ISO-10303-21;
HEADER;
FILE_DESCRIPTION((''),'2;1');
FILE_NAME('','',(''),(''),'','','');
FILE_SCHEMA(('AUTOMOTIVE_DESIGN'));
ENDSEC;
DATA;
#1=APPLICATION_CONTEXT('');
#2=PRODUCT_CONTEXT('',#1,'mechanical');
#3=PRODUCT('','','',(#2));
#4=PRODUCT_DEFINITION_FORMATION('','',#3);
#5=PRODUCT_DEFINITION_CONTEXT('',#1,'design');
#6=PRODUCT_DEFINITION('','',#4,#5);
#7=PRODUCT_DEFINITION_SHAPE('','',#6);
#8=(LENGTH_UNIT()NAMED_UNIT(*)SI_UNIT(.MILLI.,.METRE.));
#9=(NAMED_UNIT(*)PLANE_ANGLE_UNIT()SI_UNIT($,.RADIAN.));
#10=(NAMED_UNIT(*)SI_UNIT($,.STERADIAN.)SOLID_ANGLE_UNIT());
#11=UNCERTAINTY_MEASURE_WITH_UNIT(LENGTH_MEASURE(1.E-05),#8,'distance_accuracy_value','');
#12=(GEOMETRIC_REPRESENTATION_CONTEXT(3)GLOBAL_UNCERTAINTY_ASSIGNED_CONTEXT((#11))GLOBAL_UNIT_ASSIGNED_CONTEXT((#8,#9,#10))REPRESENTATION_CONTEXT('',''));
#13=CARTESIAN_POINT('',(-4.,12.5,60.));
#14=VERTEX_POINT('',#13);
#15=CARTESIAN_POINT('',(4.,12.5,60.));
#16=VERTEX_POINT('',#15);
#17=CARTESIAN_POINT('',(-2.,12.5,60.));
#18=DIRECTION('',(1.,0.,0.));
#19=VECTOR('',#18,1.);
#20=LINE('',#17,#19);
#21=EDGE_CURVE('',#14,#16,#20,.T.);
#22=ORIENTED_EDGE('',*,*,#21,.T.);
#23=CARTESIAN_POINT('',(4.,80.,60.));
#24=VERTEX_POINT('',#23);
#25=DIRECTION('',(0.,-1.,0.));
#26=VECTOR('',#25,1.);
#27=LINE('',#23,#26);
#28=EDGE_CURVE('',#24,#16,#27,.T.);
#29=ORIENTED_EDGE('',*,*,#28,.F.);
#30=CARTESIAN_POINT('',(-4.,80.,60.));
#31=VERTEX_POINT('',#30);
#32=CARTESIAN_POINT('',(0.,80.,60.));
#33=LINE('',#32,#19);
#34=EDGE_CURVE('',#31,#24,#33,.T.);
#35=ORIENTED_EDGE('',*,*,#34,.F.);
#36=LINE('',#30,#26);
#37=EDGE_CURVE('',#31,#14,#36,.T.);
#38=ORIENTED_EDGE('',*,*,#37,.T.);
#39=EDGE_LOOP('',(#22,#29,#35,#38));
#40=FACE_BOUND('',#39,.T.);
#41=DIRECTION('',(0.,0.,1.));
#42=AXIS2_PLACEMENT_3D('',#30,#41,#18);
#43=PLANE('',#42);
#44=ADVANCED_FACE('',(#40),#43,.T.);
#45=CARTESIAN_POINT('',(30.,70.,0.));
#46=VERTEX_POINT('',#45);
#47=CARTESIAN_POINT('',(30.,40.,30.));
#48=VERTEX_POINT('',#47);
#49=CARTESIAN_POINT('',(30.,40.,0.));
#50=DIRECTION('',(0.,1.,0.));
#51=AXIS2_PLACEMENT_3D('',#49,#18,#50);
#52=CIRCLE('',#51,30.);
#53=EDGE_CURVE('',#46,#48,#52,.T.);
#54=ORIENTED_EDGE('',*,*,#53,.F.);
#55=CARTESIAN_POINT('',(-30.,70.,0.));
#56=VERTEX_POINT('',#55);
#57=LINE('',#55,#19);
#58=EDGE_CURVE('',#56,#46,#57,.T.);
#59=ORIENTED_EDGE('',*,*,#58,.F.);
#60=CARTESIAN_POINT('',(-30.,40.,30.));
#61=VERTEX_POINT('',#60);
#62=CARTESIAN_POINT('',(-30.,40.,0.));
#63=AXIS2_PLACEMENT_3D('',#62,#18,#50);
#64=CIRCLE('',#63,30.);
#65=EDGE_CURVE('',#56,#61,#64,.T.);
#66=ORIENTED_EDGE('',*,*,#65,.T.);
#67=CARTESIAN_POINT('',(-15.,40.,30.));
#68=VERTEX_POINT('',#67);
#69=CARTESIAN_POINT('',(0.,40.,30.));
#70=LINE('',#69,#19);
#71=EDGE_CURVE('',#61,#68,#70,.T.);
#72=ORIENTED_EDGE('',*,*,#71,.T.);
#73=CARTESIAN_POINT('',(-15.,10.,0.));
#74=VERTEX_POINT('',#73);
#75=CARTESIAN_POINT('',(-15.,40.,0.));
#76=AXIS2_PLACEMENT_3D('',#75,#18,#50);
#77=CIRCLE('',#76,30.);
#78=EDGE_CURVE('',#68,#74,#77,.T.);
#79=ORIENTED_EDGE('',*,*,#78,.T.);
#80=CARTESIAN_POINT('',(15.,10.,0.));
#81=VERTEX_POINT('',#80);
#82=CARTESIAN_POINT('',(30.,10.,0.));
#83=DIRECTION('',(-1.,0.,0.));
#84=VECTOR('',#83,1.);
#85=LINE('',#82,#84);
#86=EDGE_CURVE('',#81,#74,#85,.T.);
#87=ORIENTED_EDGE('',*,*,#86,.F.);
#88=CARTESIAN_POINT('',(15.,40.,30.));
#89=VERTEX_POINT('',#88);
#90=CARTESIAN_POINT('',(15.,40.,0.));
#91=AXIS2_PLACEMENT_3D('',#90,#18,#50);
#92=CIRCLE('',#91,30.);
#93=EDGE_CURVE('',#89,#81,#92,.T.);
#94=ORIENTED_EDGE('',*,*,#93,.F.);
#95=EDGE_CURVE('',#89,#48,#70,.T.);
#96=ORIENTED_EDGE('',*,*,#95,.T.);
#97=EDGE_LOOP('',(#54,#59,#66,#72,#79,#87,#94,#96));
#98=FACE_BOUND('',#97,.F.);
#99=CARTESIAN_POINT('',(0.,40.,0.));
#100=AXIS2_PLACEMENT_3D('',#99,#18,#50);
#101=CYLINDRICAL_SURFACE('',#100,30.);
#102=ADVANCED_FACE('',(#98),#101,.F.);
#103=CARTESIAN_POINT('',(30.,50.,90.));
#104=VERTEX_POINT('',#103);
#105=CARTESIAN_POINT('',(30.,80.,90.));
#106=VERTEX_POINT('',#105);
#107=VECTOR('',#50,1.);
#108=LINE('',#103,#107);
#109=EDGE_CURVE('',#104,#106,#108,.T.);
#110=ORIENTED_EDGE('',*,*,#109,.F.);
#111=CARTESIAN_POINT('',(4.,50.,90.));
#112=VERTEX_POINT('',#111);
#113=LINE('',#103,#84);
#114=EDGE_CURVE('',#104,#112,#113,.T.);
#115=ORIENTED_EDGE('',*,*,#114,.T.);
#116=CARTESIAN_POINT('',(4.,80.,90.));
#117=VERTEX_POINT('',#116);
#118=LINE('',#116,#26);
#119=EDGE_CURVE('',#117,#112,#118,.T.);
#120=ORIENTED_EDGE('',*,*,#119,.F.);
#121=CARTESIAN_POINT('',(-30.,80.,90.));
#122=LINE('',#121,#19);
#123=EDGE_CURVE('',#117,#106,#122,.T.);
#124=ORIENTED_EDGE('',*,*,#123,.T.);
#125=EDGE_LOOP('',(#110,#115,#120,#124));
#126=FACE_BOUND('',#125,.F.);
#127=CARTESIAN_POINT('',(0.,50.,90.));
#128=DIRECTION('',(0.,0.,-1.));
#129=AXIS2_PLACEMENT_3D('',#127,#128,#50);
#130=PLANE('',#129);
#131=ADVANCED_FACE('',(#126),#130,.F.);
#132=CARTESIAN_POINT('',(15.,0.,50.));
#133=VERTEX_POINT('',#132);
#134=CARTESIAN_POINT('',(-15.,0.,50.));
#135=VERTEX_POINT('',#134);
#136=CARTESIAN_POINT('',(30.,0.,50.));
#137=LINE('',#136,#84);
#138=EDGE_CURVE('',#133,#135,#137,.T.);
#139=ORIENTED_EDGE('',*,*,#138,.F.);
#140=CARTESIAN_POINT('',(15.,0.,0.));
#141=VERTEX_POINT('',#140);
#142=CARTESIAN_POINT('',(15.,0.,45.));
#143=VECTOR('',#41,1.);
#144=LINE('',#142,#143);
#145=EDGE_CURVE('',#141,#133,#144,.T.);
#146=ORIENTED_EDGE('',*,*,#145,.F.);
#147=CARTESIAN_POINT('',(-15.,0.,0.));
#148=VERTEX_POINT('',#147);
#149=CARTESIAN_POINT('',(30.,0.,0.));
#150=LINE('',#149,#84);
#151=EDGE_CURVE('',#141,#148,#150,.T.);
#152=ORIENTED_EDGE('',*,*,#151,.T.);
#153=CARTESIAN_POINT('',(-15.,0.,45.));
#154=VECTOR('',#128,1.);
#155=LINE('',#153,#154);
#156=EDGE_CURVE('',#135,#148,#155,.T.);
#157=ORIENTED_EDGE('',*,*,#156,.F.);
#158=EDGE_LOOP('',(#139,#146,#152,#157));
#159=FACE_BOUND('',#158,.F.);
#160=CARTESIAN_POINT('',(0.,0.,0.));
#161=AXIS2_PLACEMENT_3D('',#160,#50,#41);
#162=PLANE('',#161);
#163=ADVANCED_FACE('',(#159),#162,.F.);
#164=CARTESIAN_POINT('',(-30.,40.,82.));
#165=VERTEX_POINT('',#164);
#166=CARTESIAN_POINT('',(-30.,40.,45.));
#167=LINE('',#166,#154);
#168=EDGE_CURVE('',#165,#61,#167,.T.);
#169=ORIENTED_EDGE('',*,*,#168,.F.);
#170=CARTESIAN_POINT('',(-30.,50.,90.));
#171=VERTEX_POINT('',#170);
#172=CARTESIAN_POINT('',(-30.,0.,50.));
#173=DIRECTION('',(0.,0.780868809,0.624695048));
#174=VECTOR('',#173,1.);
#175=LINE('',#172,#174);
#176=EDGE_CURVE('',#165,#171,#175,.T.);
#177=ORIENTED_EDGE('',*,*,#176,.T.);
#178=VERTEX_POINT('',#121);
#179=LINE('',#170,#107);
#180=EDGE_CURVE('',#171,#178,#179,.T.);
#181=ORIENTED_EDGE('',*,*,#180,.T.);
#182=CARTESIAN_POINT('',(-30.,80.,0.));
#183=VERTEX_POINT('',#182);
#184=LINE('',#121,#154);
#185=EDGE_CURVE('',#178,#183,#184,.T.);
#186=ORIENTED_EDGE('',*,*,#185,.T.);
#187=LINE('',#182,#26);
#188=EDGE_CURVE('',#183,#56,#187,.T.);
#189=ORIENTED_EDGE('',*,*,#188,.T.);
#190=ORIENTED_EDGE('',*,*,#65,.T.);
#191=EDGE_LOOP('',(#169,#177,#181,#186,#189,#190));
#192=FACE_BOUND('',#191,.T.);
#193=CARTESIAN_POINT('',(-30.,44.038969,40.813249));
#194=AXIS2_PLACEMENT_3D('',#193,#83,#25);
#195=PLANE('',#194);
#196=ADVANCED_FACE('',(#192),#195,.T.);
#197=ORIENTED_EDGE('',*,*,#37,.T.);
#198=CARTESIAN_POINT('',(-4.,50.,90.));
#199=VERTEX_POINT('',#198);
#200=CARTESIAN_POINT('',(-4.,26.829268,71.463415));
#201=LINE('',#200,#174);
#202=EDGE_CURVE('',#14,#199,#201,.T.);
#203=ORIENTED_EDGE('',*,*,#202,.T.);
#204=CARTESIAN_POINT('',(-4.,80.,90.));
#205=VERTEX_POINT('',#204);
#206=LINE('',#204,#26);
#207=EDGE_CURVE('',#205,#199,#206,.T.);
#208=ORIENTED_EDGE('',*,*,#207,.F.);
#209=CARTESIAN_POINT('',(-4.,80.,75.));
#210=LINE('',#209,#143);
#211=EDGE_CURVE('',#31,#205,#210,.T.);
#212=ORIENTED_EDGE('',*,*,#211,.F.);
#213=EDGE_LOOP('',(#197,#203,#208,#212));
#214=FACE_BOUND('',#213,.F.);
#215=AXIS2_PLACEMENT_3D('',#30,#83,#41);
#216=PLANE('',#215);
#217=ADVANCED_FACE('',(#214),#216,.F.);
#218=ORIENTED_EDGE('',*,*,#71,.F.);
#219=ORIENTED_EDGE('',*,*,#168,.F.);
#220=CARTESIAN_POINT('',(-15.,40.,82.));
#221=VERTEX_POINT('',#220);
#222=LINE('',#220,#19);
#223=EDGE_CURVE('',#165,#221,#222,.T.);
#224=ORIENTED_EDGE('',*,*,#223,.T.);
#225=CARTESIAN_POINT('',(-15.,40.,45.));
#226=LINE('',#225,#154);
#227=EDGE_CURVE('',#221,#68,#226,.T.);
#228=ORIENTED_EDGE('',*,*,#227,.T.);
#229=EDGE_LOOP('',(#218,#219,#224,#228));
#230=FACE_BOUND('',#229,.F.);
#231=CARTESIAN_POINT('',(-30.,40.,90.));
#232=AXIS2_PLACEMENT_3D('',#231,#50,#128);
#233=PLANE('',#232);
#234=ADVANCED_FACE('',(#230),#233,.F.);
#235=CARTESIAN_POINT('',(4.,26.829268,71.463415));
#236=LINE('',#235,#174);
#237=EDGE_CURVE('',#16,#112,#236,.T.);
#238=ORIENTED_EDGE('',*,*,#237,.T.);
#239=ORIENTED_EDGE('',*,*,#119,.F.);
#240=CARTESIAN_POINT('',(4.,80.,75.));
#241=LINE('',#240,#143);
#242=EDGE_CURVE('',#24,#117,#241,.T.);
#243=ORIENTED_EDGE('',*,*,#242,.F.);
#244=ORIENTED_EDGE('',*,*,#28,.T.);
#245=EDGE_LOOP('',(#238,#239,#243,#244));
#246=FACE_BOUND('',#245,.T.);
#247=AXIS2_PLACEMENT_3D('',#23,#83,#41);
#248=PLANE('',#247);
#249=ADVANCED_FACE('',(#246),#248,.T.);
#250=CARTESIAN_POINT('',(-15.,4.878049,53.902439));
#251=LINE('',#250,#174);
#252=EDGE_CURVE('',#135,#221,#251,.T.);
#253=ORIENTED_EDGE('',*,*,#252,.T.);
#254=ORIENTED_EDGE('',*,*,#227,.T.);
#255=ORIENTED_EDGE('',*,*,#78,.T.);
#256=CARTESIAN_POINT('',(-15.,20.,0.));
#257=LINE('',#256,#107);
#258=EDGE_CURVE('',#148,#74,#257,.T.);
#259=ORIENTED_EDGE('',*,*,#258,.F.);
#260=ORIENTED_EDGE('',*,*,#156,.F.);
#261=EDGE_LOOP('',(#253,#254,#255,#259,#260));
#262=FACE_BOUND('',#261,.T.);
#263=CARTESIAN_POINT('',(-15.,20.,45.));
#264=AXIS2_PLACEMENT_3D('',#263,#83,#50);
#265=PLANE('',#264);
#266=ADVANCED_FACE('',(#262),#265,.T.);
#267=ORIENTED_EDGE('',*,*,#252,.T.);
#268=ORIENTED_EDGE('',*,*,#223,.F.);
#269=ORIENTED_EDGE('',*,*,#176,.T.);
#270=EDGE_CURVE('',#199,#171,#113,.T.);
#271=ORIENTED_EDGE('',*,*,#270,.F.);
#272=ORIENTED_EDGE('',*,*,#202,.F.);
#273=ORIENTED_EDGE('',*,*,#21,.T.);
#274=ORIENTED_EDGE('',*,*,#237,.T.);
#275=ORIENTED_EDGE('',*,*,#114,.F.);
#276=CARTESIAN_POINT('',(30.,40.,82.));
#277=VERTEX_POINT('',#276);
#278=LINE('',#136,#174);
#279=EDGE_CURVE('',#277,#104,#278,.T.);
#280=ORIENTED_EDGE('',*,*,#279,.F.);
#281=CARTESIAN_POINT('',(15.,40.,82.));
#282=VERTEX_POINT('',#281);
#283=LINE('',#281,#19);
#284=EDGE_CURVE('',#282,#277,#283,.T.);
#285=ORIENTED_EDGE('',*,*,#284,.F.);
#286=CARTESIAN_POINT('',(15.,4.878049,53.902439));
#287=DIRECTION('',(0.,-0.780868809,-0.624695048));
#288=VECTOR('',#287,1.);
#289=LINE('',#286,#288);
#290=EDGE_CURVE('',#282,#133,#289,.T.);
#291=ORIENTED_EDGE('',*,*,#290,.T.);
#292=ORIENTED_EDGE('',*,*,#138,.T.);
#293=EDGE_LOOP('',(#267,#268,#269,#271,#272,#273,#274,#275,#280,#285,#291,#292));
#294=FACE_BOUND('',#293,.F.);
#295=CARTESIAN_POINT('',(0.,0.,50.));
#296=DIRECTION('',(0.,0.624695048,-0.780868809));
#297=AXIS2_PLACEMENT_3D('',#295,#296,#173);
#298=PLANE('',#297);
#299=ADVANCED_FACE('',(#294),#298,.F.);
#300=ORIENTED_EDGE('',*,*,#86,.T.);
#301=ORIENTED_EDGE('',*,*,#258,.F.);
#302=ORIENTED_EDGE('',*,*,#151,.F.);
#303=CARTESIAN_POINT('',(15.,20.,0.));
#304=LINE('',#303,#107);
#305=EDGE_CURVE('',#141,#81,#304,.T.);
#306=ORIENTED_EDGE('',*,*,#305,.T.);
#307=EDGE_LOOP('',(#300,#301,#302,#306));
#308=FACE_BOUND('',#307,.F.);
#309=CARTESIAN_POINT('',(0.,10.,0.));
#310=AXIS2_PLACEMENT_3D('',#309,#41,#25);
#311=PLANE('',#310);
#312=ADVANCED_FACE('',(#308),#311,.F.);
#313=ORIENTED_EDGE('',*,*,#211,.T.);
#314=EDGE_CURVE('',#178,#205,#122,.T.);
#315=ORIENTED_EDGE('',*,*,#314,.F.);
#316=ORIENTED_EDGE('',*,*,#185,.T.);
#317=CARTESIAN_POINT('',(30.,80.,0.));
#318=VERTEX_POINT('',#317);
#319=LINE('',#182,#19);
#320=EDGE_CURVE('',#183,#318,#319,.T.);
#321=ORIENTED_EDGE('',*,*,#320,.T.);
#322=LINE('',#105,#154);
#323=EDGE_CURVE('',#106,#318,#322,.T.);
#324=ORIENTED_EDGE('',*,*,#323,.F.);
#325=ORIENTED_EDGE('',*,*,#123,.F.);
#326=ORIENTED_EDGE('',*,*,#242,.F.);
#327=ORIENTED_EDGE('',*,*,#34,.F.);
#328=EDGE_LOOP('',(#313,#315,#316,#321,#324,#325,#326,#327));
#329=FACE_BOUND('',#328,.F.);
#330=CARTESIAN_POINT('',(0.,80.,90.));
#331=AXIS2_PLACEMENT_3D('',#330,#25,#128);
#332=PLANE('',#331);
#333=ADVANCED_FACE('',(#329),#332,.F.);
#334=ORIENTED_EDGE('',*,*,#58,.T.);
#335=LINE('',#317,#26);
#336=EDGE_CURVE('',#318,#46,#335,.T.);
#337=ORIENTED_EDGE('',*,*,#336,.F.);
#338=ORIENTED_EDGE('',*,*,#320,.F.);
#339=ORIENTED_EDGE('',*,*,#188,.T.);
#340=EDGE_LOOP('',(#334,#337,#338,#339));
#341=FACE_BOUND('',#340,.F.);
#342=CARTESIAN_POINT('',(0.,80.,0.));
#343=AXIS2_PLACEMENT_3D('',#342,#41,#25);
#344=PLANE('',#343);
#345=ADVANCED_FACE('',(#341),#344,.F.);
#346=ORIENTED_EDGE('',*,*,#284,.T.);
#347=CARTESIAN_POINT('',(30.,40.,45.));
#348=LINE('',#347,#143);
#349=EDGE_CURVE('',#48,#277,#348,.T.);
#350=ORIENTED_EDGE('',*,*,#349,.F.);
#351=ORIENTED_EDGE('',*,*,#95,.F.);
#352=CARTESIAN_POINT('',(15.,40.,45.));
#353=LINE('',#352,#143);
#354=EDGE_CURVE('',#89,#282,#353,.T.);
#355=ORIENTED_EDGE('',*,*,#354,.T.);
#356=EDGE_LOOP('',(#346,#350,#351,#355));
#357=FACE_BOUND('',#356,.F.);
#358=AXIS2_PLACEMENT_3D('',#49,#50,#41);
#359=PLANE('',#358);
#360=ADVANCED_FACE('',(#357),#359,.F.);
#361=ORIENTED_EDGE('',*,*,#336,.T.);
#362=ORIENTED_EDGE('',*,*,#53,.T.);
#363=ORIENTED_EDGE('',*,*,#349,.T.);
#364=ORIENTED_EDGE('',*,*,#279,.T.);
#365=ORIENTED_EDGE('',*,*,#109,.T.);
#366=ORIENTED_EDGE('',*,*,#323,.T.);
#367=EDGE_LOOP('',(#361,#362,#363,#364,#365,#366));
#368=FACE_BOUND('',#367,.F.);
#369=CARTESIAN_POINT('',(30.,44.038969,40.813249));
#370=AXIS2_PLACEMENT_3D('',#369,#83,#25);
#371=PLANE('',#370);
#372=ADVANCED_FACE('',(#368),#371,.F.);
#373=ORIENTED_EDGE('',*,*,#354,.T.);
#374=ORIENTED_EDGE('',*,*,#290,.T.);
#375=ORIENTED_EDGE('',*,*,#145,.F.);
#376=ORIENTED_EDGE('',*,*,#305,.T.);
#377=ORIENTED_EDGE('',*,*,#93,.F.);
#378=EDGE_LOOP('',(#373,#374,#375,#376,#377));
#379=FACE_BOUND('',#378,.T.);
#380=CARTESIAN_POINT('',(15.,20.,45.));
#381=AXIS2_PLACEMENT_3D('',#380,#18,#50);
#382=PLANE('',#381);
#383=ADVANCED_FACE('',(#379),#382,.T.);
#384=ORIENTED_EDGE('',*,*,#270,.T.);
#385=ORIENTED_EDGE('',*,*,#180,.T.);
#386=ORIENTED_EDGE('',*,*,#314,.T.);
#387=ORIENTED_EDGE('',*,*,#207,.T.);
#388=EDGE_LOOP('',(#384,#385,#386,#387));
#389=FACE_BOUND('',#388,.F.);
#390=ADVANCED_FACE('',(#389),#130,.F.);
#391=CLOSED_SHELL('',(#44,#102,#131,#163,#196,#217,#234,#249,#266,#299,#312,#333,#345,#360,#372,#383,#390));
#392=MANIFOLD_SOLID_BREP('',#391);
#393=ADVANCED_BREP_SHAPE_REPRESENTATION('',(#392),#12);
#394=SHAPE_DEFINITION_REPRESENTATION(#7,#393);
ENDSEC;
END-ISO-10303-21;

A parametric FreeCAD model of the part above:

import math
import FreeCAD as App
import Part
import Sketcher
from FreeCAD import Vector


def add_polygon(sketch, points):
    """Adds a closed chain of lines whose ends are joined by coincident constraints."""
    first, n = sketch.GeometryCount, len(points)
    for a, b in zip(points, points[1:] + points[:1]):
        sketch.addGeometry(Part.LineSegment(App.Vector(*a, 0), App.Vector(*b, 0)), False)
    for i in range(n):
        sketch.addConstraint(Sketcher.Constraint("Coincident", first + i, 2, first + (i + 1) % n, 1))

doc = App.newDocument("Part")
body = doc.addObject("PartDesign::Body", "Body")

sketch1 = body.newObject("Sketcher::SketchObject", "Sketch")
sketch1.AttachmentSupport = (doc.getObject("YZ_Plane"), [""])
sketch1.MapMode = "FlatFace"
sketch1.addGeometry([
    Part.ArcOfCircle(Part.Circle(Vector(40, 0, 0), Vector(0, 0, 1), 30), math.radians(0), math.radians(180)),
    Part.LineSegment(Vector(70, 0, 0), Vector(80, 0, 0)),
    Part.LineSegment(Vector(80, 0, 0), Vector(80, 90, 0)),
    Part.LineSegment(Vector(80, 90, 0), Vector(50, 90, 0)),
    Part.LineSegment(Vector(50, 90, 0), Vector(0, 50, 0)),
    Part.LineSegment(Vector(0, 50, 0), Vector(0, 0, 0)),
    Part.LineSegment(Vector(0, 0, 0), Vector(10, 0, 0)),
], False)
sketch1.addConstraint([
    Sketcher.Constraint("Coincident", 0, 1, 1, 1),
    Sketcher.Constraint("Coincident", 1, 2, 2, 1),
    Sketcher.Constraint("Coincident", 2, 2, 3, 1),
    Sketcher.Constraint("Coincident", 3, 2, 4, 1),
    Sketcher.Constraint("Coincident", 4, 2, 5, 1),
    Sketcher.Constraint("Coincident", 5, 2, 6, 1),
    Sketcher.Constraint("Coincident", 6, 2, 0, 2),
    Sketcher.Constraint("Horizontal", 1),
    Sketcher.Constraint("Vertical", 2),
    Sketcher.Constraint("Horizontal", 3),
    Sketcher.Constraint("Vertical", 5),
    Sketcher.Constraint("Horizontal", 6),
    Sketcher.Constraint("Coincident", 5, 2, -1, 1),
    Sketcher.Constraint("PointOnObject", 0, 3, -1),
    Sketcher.Constraint("PointOnObject", 0, 1, -1),
    Sketcher.Constraint("Equal", 1, 6),
    Sketcher.Constraint("Radius", 0, 30.0),
    Sketcher.Constraint("DistanceX", 1, 1, 1, 2, 10.0),
    Sketcher.Constraint("DistanceX", 3, 2, 3, 1, 30.0),
    Sketcher.Constraint("DistanceY", 2, 1, 2, 2, 90.0),
    Sketcher.Constraint("DistanceY", 5, 2, 5, 1, 50.0),
])
pad1 = body.newObject("PartDesign::Pad", "Pad")
pad1.Profile = sketch1
pad1.Length = 60
pad1.Midplane = True

sketch2 = body.newObject("Sketcher::SketchObject", "Sketch001")
sketch2.AttachmentSupport = (doc.getObject("YZ_Plane"), [""])
sketch2.MapMode = "FlatFace"
sketch2.AttachmentOffset = App.Placement(Vector(0, 0, 30), App.Rotation())
add_polygon(sketch2, [(0, 90), (0, 0), (40, 0), (40, 90)])
sketch2.addConstraint([
    Sketcher.Constraint("Vertical", 0),
    Sketcher.Constraint("Horizontal", 1),
    Sketcher.Constraint("Vertical", 2),
    Sketcher.Constraint("Horizontal", 3),
    Sketcher.Constraint("Coincident", 0, 2, -1, 1),
    Sketcher.Constraint("DistanceX", 1, 1, 1, 2, 40.0),
    Sketcher.Constraint("DistanceY", 0, 2, 0, 1, 90.0),
])
pocket1 = body.newObject("PartDesign::Pocket", "Pocket")
pocket1.Profile = sketch2
pocket1.Length = 15

sketch3 = body.newObject("Sketcher::SketchObject", "Sketch002")
sketch3.AttachmentSupport = (doc.getObject("YZ_Plane"), [""])
sketch3.MapMode = "FlatFace"
sketch3.AttachmentOffset = App.Placement(Vector(0, 0, -30), App.Rotation())
add_polygon(sketch3, [(0, 0), (0, 90), (40, 90), (40, 0)])
sketch3.addConstraint([
    Sketcher.Constraint("Vertical", 0),
    Sketcher.Constraint("Horizontal", 1),
    Sketcher.Constraint("Vertical", 2),
    Sketcher.Constraint("Horizontal", 3),
    Sketcher.Constraint("Coincident", 3, 2, -1, 1),
    Sketcher.Constraint("DistanceX", 1, 1, 1, 2, 40.0),
    Sketcher.Constraint("DistanceY", 0, 1, 0, 2, 90.0),
])
pocket2 = body.newObject("PartDesign::Pocket", "Pocket001")
pocket2.Profile = sketch3
pocket2.Length = 15
pocket2.Reversed = True

sketch4 = body.newObject("Sketcher::SketchObject", "Sketch003")
sketch4.AttachmentSupport = (doc.getObject("XZ_Plane"), [""])
sketch4.MapMode = "FlatFace"
sketch4.AttachmentOffset = App.Placement(Vector(0, 0, -80), App.Rotation())
add_polygon(sketch4, [(4, 60), (-4, 60), (-4, 90), (4, 90)])
sketch4.addConstraint([
    Sketcher.Constraint("Horizontal", 0),
    Sketcher.Constraint("Vertical", 1),
    Sketcher.Constraint("Horizontal", 2),
    Sketcher.Constraint("Vertical", 3),
    Sketcher.Constraint("DistanceX", 0, 2, 0, 1, 8.0),
    Sketcher.Constraint("DistanceY", 1, 1, 1, 2, 30.0),
    Sketcher.Constraint("DistanceX", 0, 2, -1, 1, 4.0),
    Sketcher.Constraint("DistanceY", -1, 1, 0, 2, 60.0),
])
pocket3 = body.newObject("PartDesign::Pocket", "Pocket002")
pocket3.Profile = sketch4
pocket3.Type = "ThroughAll"
pocket3.Reversed = True

doc.recompute()
